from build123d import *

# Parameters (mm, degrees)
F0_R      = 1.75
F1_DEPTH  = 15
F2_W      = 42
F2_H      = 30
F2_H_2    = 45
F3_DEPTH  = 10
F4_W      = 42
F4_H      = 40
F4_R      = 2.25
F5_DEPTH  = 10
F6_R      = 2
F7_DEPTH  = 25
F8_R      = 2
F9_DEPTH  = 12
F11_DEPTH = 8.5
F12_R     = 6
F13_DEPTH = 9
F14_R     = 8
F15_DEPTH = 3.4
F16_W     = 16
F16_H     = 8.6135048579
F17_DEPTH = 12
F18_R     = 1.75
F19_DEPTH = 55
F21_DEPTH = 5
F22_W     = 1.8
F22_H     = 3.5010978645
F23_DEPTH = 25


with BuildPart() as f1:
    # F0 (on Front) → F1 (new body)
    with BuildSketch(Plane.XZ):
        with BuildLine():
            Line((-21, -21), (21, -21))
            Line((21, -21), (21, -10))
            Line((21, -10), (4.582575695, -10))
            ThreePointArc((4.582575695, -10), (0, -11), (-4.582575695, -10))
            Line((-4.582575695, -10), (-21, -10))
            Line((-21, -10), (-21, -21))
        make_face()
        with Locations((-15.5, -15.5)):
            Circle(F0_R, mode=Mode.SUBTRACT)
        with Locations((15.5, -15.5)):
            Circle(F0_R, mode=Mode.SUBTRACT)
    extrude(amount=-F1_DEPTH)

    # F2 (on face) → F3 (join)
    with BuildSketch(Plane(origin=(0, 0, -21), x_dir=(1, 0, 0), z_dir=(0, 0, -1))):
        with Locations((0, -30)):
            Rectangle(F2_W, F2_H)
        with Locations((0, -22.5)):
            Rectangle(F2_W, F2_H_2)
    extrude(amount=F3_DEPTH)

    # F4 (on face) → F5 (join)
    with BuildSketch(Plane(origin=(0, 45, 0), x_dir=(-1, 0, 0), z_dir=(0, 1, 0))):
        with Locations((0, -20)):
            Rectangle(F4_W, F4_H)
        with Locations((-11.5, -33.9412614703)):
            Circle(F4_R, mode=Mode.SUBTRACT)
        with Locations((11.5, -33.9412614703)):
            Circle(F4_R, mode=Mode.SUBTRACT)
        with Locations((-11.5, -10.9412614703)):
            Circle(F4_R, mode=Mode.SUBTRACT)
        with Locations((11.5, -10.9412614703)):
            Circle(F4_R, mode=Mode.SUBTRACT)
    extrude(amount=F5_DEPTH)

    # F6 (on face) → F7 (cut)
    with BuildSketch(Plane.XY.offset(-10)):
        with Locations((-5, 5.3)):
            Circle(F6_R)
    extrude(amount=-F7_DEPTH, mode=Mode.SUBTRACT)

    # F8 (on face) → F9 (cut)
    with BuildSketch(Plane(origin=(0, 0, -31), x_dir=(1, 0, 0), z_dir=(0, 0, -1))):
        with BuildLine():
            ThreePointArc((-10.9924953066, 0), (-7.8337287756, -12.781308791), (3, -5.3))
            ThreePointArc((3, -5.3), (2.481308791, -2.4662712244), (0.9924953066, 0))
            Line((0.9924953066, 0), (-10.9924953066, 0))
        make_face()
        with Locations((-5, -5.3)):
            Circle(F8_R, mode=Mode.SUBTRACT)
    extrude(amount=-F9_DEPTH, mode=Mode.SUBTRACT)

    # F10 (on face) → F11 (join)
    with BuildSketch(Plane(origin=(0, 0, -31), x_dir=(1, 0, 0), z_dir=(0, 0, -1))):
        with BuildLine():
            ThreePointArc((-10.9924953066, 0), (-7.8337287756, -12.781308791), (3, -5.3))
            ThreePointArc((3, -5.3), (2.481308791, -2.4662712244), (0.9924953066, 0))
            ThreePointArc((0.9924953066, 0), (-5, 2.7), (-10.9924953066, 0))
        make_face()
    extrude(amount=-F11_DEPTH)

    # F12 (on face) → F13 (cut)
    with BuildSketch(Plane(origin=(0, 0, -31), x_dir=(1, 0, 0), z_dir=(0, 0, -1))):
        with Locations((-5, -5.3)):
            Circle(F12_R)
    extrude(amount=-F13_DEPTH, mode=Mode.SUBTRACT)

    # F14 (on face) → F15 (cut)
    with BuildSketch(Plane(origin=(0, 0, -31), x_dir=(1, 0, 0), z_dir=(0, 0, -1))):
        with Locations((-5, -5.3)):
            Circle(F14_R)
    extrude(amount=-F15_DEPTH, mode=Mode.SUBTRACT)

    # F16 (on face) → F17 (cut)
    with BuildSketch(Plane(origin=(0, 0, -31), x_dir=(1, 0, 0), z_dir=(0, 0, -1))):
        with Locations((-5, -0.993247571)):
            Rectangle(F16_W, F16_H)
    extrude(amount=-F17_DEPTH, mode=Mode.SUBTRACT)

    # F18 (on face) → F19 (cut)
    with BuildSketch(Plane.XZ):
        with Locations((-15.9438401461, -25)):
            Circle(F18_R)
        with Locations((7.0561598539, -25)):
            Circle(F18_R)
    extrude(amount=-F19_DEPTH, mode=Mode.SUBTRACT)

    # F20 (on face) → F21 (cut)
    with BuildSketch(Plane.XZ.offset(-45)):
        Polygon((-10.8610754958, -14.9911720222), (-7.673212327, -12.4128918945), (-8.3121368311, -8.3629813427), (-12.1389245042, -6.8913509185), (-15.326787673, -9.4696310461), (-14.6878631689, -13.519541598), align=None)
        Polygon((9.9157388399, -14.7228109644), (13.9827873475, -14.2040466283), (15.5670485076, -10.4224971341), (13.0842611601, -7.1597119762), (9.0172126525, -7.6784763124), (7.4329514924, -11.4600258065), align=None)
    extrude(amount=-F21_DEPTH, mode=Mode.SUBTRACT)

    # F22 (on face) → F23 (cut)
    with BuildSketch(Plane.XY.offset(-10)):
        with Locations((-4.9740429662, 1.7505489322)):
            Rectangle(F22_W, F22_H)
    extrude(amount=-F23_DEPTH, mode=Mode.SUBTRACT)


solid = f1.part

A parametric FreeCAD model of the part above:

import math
import FreeCAD as App
import Part
import Sketcher
from FreeCAD import Vector
Q = App.Units.Quantity


def add_polygon(sketch, points):
    """Adds a closed chain of lines whose ends are joined by coincident constraints."""
    first, n = sketch.GeometryCount, len(points)
    for a, b in zip(points, points[1:] + points[:1]):
        sketch.addGeometry(Part.LineSegment(App.Vector(*a, 0), App.Vector(*b, 0)), False)
    for i in range(n):
        sketch.addConstraint(Sketcher.Constraint("Coincident", first + i, 2, first + (i + 1) % n, 1))

doc = App.newDocument("Part")
body = doc.addObject("PartDesign::Body", "Body")

sketch1 = body.newObject("Sketcher::SketchObject", "Sketch")
sketch1.AttachmentSupport = (doc.getObject("XZ_Plane"), [""])
sketch1.MapMode = "FlatFace"
sketch1.addGeometry(Part.LineSegment(Vector(-21, -21, 0), Vector(21, -21, 0)), False)
sketch1.addGeometry(Part.LineSegment(Vector(21, -21, 0), Vector(21, -10, 0)), False)
sketch1.addGeometry(Part.LineSegment(Vector(21, -10, 0), Vector(4.582576, -10, 0)), False)
sketch1.addGeometry(Part.ArcOfCircle(Part.Circle(Vector(0, 0, 0), Vector(0, 0, 1), 11), math.radians(-114.619977), math.radians(-65.380023)), False)
sketch1.addGeometry(Part.LineSegment(Vector(-4.582576, -10, 0), Vector(-21, -10, 0)), False)
sketch1.addGeometry(Part.LineSegment(Vector(-21, -10, 0), Vector(-21, -21, 0)), False)
sketch1.addGeometry(Part.Circle(Vector(-15.5, -15.5, 0), Vector(0, 0, 1), 1.75), False)
sketch1.addGeometry(Part.Circle(Vector(15.5, -15.5, 0), Vector(0, 0, 1), 1.75), False)
sketch1.addConstraint(Sketcher.Constraint("Coincident", 0, 2, 1, 1))
sketch1.addConstraint(Sketcher.Constraint("Coincident", 1, 2, 2, 1))
sketch1.addConstraint(Sketcher.Constraint("Coincident", 2, 2, 3, 2))
sketch1.addConstraint(Sketcher.Constraint("Coincident", 3, 1, 4, 1))
sketch1.addConstraint(Sketcher.Constraint("Coincident", 4, 2, 5, 1))
sketch1.addConstraint(Sketcher.Constraint("Coincident", 5, 2, 0, 1))
sketch1.addConstraint(Sketcher.Constraint("Horizontal", 0))
sketch1.addConstraint(Sketcher.Constraint("Vertical", 1))
sketch1.addConstraint(Sketcher.Constraint("Horizontal", 2))
sketch1.addConstraint(Sketcher.Constraint("Horizontal", 4))
sketch1.addConstraint(Sketcher.Constraint("Vertical", 5))
sketch1.addConstraint(Sketcher.Constraint("Coincident", 3, 3, -1, 1))
sketch1.addConstraint(Sketcher.Constraint("Equal", 6, 7))
sketch1.addConstraint(Sketcher.Constraint("Symmetric", 6, 3, 7, 3, -2))
sketch1.addConstraint(Sketcher.Constraint("Symmetric", 1, 2, 4, 2, -2))
sketch1.addConstraint(Sketcher.Constraint("Radius", 3, Q("11 mm")))
sketch1.addConstraint(Sketcher.Constraint("Diameter", 6, Q("3.5 mm")))
sketch1.addConstraint(Sketcher.Constraint("DistanceX", 0, 1, 0, 2, Q("42 mm")))
sketch1.addConstraint(Sketcher.Constraint("DistanceY", 1, 1, 1, 2, Q("11 mm")))
sketch1.addConstraint(Sketcher.Constraint("DistanceY", 0, 2, -1, 1, Q("21 mm")))
sketch1.addConstraint(Sketcher.Constraint("DistanceX", 6, 3, 7, 3, Q("31 mm")))
sketch1.addConstraint(Sketcher.Constraint("DistanceY", 6, 3, -1, 1, Q("15.5 mm")))
pad1 = body.newObject("PartDesign::Pad", "Pad")
pad1.Profile = sketch1
pad1.Length = 15
pad1.Reversed = True

sketch2 = body.newObject("Sketcher::SketchObject", "Sketch001")
sketch2.AttachmentSupport = (doc.getObject("XY_Plane"), [""])
sketch2.MapMode = "FlatFace"
sketch2.AttachmentOffset = App.Placement(Vector(0, 0, -21), App.Rotation())
add_polygon(sketch2, [(-21, 45), (21, 45), (21, 0), (-21, 0)])
sketch2.addConstraint(Sketcher.Constraint("Horizontal", 0))
sketch2.addConstraint(Sketcher.Constraint("Vertical", 1))
sketch2.addConstraint(Sketcher.Constraint("Horizontal", 2))
sketch2.addConstraint(Sketcher.Constraint("Vertical", 3))
sketch2.addConstraint(Sketcher.Constraint("Symmetric", 1, 2, 2, 2, -1, 1))
sketch2.addConstraint(Sketcher.Constraint("DistanceX", 0, 1, 0, 2, Q("42 mm")))
sketch2.addConstraint(Sketcher.Constraint("DistanceY", 1, 2, 1, 1, Q("45 mm")))
pad2 = body.newObject("PartDesign::Pad", "Pad001")
pad2.Profile = sketch2
pad2.Length = 10
pad2.Reversed = True

sketch3 = body.newObject("Sketcher::SketchObject", "Sketch002")
sketch3.AttachmentSupport = (doc.getObject("XZ_Plane"), [""])
sketch3.MapMode = "FlatFace"
sketch3.AttachmentOffset = App.Placement(Vector(0, 0, -45), App.Rotation())
add_polygon(sketch3, [(21, 0), (21, -40), (-21, -40), (-21, 0)])
sketch3.addGeometry(Part.Circle(Vector(11.5, -33.941261, 0), Vector(0, 0, 1), 2.25), False)
sketch3.addGeometry(Part.Circle(Vector(-11.5, -33.941261, 0), Vector(0, 0, 1), 2.25), False)
sketch3.addGeometry(Part.Circle(Vector(11.5, -10.941261, 0), Vector(0, 0, 1), 2.25), False)
sketch3.addGeometry(Part.Circle(Vector(-11.5, -10.941261, 0), Vector(0, 0, 1), 2.25), False)
sketch3.addConstraint(Sketcher.Constraint("Vertical", 0))
sketch3.addConstraint(Sketcher.Constraint("Horizontal", 1))
sketch3.addConstraint(Sketcher.Constraint("Vertical", 2))
sketch3.addConstraint(Sketcher.Constraint("Horizontal", 3))
sketch3.addConstraint(Sketcher.Constraint("Equal", 4, 5))
sketch3.addConstraint(Sketcher.Constraint("Equal", 5, 6))
sketch3.addConstraint(Sketcher.Constraint("Equal", 6, 7))
sketch3.addConstraint(Sketcher.Constraint("Symmetric", 2, 2, 3, 2, -1, 1))
sketch3.addConstraint(Sketcher.Constraint("Symmetric", 4, 3, 5, 3, -2))
sketch3.addConstraint(Sketcher.Constraint("Symmetric", 6, 3, 7, 3, -2))
sketch3.addConstraint(Sketcher.Constraint("Vertical", 4, 3, 6, 3))
sketch3.addConstraint(Sketcher.Constraint("Diameter", 4, Q("4.5 mm")))
sketch3.addConstraint(Sketcher.Constraint("DistanceX", 1, 2, 1, 1, Q("42 mm")))
sketch3.addConstraint(Sketcher.Constraint("DistanceY", 0, 2, 0, 1, Q("40 mm")))
sketch3.addConstraint(Sketcher.Constraint("DistanceX", 5, 3, 4, 3, Q("23 mm")))
sketch3.addConstraint(Sketcher.Constraint("DistanceY", 4, 3, 6, 3, Q("23 mm")))
sketch3.addConstraint(Sketcher.Constraint("DistanceY", 4, 3, -1, 1, Q("33.941261 mm")))
pad3 = body.newObject("PartDesign::Pad", "Pad002")
pad3.Profile = sketch3
pad3.Length = 10
pad3.Reversed = True

sketch4 = body.newObject("Sketcher::SketchObject", "Sketch003")
sketch4.AttachmentSupport = (doc.getObject("XY_Plane"), [""])
sketch4.MapMode = "FlatFace"
sketch4.AttachmentOffset = App.Placement(Vector(0, 0, -10), App.Rotation())
sketch4.addGeometry(Part.Circle(Vector(-5, 5.3, 0), Vector(0, 0, 1), 2), False)
sketch4.addConstraint(Sketcher.Constraint("Diameter", 0, Q("4 mm")))
sketch4.addConstraint(Sketcher.Constraint("DistanceX", 0, 3, -1, 1, Q("5 mm")))
sketch4.addConstraint(Sketcher.Constraint("DistanceY", -1, 1, 0, 3, Q("5.3 mm")))
pocket1 = body.newObject("PartDesign::Pocket", "Pocket")
pocket1.Profile = sketch4
pocket1.Length = 25

sketch5 = body.newObject("Sketcher::SketchObject", "Sketch004")
sketch5.AttachmentSupport = (doc.getObject("XY_Plane"), [""])
sketch5.MapMode = "FlatFace"
sketch5.AttachmentOffset = App.Placement(Vector(0, 0, -31), App.Rotation())
sketch5.addGeometry(Part.ArcOfCircle(Part.Circle(Vector(-5, 5.3, 0), Vector(0, 0, 1), 8), math.radians(0), math.radians(221.490817)), False)
sketch5.addGeometry(Part.ArcOfCircle(Part.Circle(Vector(-5, 5.3, 0), Vector(0, 0, 1), 8), math.radians(-41.490817), math.radians(0)), False)
sketch5.addGeometry(Part.LineSegment(Vector(0.992495, 0, 0), Vector(-10.992495, 0, 0)), False)
sketch5.addGeometry(Part.Circle(Vector(-5, 5.3, 0), Vector(0, 0, 1), 2), False)
sketch5.addConstraint(Sketcher.Constraint("Tangent", 0, 1, 1, 2))
sketch5.addConstraint(Sketcher.Constraint("Coincident", 1, 1, 2, 1))
sketch5.addConstraint(Sketcher.Constraint("Coincident", 2, 2, 0, 2))
sketch5.addConstraint(Sketcher.Constraint("Horizontal", 2))
sketch5.addConstraint(Sketcher.Constraint("Coincident", 3, 3, 0, 3))
sketch5.addConstraint(Sketcher.Constraint("Equal", 0, 1))
sketch5.addConstraint(Sketcher.Constraint("PointOnObject", 1, 1, -1))
sketch5.addConstraint(Sketcher.Constraint("Horizontal", 3, 3, 0, 1))
sketch5.addConstraint(Sketcher.Constraint("Diameter", 3, Q("4 mm")))
sketch5.addConstraint(Sketcher.Constraint("Radius", 0, Q("8 mm")))
sketch5.addConstraint(Sketcher.Constraint("DistanceX", 0, 3, -1, 1, Q("5 mm")))
sketch5.addConstraint(Sketcher.Constraint("DistanceY", -1, 1, 0, 3, Q("5.3 mm")))
pocket2 = body.newObject("PartDesign::Pocket", "Pocket001")
pocket2.Profile = sketch5
pocket2.Length = 12
pocket2.Reversed = True

sketch6 = body.newObject("Sketcher::SketchObject", "Sketch005")
sketch6.AttachmentSupport = (doc.getObject("XY_Plane"), [""])
sketch6.MapMode = "FlatFace"
sketch6.AttachmentOffset = App.Placement(Vector(0, 0, -31), App.Rotation())
sketch6.addGeometry(Part.ArcOfCircle(Part.Circle(Vector(-5, 5.3, 0), Vector(0, 0, 1), 8), math.radians(0), math.radians(221.490817)), False)
sketch6.addGeometry(Part.ArcOfCircle(Part.Circle(Vector(-5, 5.3, 0), Vector(0, 0, 1), 8), math.radians(-41.490817), math.radians(0)), False)
sketch6.addGeometry(Part.ArcOfCircle(Part.Circle(Vector(-5, 5.3, 0), Vector(0, 0, 1), 8), math.radians(-138.509183), math.radians(-41.490817)), False)
sketch6.addConstraint(Sketcher.Constraint("Tangent", 0, 1, 1, 2))
sketch6.addConstraint(Sketcher.Constraint("Tangent", 1, 1, 2, 2))
sketch6.addConstraint(Sketcher.Constraint("Tangent", 2, 1, 0, 2))
sketch6.addConstraint(Sketcher.Constraint("PointOnObject", 1, 1, -1))
sketch6.addConstraint(Sketcher.Constraint("PointOnObject", 2, 1, -1))
sketch6.addConstraint(Sketcher.Constraint("Horizontal", 2, 3, 0, 1))
sketch6.addConstraint(Sketcher.Constraint("Radius", 0, Q("8 mm")))
sketch6.addConstraint(Sketcher.Constraint("DistanceX", 0, 3, -1, 1, Q("5 mm")))
sketch6.addConstraint(Sketcher.Constraint("DistanceY", -1, 1, 0, 3, Q("5.3 mm")))
pad4 = body.newObject("PartDesign::Pad", "Pad003")
pad4.Profile = sketch6
pad4.Length = 8.5

sketch7 = body.newObject("Sketcher::SketchObject", "Sketch006")
sketch7.AttachmentSupport = (doc.getObject("XY_Plane"), [""])
sketch7.MapMode = "FlatFace"
sketch7.AttachmentOffset = App.Placement(Vector(0, 0, -31), App.Rotation())
sketch7.addGeometry(Part.Circle(Vector(-5, 5.3, 0), Vector(0, 0, 1), 6), False)
sketch7.addConstraint(Sketcher.Constraint("Diameter", 0, Q("12 mm")))
sketch7.addConstraint(Sketcher.Constraint("DistanceX", 0, 3, -1, 1, Q("5 mm")))
sketch7.addConstraint(Sketcher.Constraint("DistanceY", -1, 1, 0, 3, Q("5.3 mm")))
pocket3 = body.newObject("PartDesign::Pocket", "Pocket002")
pocket3.Profile = sketch7
pocket3.Length = 9
pocket3.Reversed = True

sketch8 = body.newObject("Sketcher::SketchObject", "Sketch007")
sketch8.AttachmentSupport = (doc.getObject("XY_Plane"), [""])
sketch8.MapMode = "FlatFace"
sketch8.AttachmentOffset = App.Placement(Vector(0, 0, -31), App.Rotation())
sketch8.addGeometry(Part.Circle(Vector(-5, 5.3, 0), Vector(0, 0, 1), 8), False)
sketch8.addConstraint(Sketcher.Constraint("Diameter", 0, Q("16 mm")))
sketch8.addConstraint(Sketcher.Constraint("DistanceX", 0, 3, -1, 1, Q("5 mm")))
sketch8.addConstraint(Sketcher.Constraint("DistanceY", -1, 1, 0, 3, Q("5.3 mm")))
pocket4 = body.newObject("PartDesign::Pocket", "Pocket003")
pocket4.Profile = sketch8
pocket4.Length = 3.4
pocket4.Reversed = True

sketch9 = body.newObject("Sketcher::SketchObject", "Sketch008")
sketch9.AttachmentSupport = (doc.getObject("XY_Plane"), [""])
sketch9.MapMode = "FlatFace"
sketch9.AttachmentOffset = App.Placement(Vector(0, 0, -31), App.Rotation())
add_polygon(sketch9, [(-13, -3.313505), (-13, 5.3), (3, 5.3), (3, -3.313505)])
sketch9.addConstraint(Sketcher.Constraint("Vertical", 0))
sketch9.addConstraint(Sketcher.Constraint("Horizontal", 1))
sketch9.addConstraint(Sketcher.Constraint("Vertical", 2))
sketch9.addConstraint(Sketcher.Constraint("Horizontal", 3))
sketch9.addConstraint(Sketcher.Constraint("DistanceX", 1, 1, 1, 2, Q("16 mm")))
sketch9.addConstraint(Sketcher.Constraint("DistanceX", 0, 2, -1, 1, Q("13 mm")))
sketch9.addConstraint(Sketcher.Constraint("DistanceY", -1, 1, 0, 2, Q("5.3 mm")))
sketch9.addConstraint(Sketcher.Constraint("DistanceY", 0, 1, 0, 2, Q("8.613505 mm")))
pocket5 = body.newObject("PartDesign::Pocket", "Pocket004")
pocket5.Profile = sketch9
pocket5.Length = 12
pocket5.Reversed = True

sketch10 = body.newObject("Sketcher::SketchObject", "Sketch009")
sketch10.AttachmentSupport = (doc.getObject("XZ_Plane"), [""])
sketch10.MapMode = "FlatFace"
sketch10.addGeometry(Part.Circle(Vector(-15.94384, -25, 0), Vector(0, 0, 1), 1.75), False)
sketch10.addGeometry(Part.Circle(Vector(7.05616, -25, 0), Vector(0, 0, 1), 1.75), False)
sketch10.addConstraint(Sketcher.Constraint("Equal", 0, 1))
sketch10.addConstraint(Sketcher.Constraint("Horizontal", 0, 3, 1, 3))
sketch10.addConstraint(Sketcher.Constraint("Diameter", 0, Q("3.5 mm")))
sketch10.addConstraint(Sketcher.Constraint("DistanceY", 0, 3, -1, 1, Q("25 mm")))
sketch10.addConstraint(Sketcher.Constraint("DistanceX", 0, 3, 1, 3, Q("23 mm")))
sketch10.addConstraint(Sketcher.Constraint("DistanceX", 0, 3, -1, 1, Q("15.94384 mm")))
pocket6 = body.newObject("PartDesign::Pocket", "Pocket005")
pocket6.Profile = sketch10
pocket6.Length = 55

sketch11 = body.newObject("Sketcher::SketchObject", "Sketch010")
sketch11.AttachmentSupport = (doc.getObject("XZ_Plane"), [""])
sketch11.MapMode = "FlatFace"
sketch11.AttachmentOffset = App.Placement(Vector(0, 0, -45), App.Rotation())
add_polygon(sketch11, [(-10.861075, -14.991172), (-7.673212, -12.412892), (-8.312137, -8.362981), (-12.138925, -6.891351), (-15.326788, -9.469631), (-14.687863, -13.519542)])
add_polygon(sketch11, [(9.915739, -14.722811), (13.982787, -14.204047), (15.567049, -10.422497), (13.084261, -7.159712), (9.017213, -7.678476), (7.432951, -11.460026)])
sketch11.addConstraint(Sketcher.Constraint("Parallel", 0, 3))
sketch11.addConstraint(Sketcher.Constraint("Parallel", 1, 4))
sketch11.addConstraint(Sketcher.Constraint("Parallel", 2, 5))
sketch11.addConstraint(Sketcher.Constraint("Parallel", 6, 9))
sketch11.addConstraint(Sketcher.Constraint("Parallel", 7, 10))
sketch11.addConstraint(Sketcher.Constraint("Parallel", 8, 11))
sketch11.addConstraint(Sketcher.Constraint("Equal", 0, 1))
sketch11.addConstraint(Sketcher.Constraint("Equal", 1, 2))
sketch11.addConstraint(Sketcher.Constraint("Equal", 2, 3))
sketch11.addConstraint(Sketcher.Constraint("Equal", 5, 6))
sketch11.addConstraint(Sketcher.Constraint("Equal", 6, 7))
sketch11.addConstraint(Sketcher.Constraint("Equal", 7, 8))
sketch11.addConstraint(Sketcher.Constraint("Equal", 8, 9))
sketch11.addConstraint(Sketcher.Constraint("Distance", 0, Q("4.1 mm")))
sketch11.addConstraint(Sketcher.Constraint("DistanceX", 0, 2, 6, 2, Q("21.656 mm")))
sketch11.addConstraint(Sketcher.Constraint("DistanceY", 11, 2, 8, 2, Q("7.563099 mm")))
sketch11.addConstraint(Sketcher.Constraint("DistanceY", 0, 2, -1, 1, Q("12.412892 mm")))
sketch11.addConstraint(Sketcher.Constraint("DistanceY", 1, 2, -1, 1, Q("8.362981 mm")))
sketch11.addConstraint(Sketcher.Constraint("DistanceY", 2, 2, -1, 1, Q("6.891351 mm")))
sketch11.addConstraint(Sketcher.Constraint("DistanceY", 3, 2, -1, 1, Q("9.469631 mm")))
sketch11.addConstraint(Sketcher.Constraint("DistanceX", -1, 1, 7, 2, Q("15.567049 mm")))
sketch11.addConstraint(Sketcher.Constraint("DistanceX", -1, 1, 8, 2, Q("13.084261 mm")))
sketch11.addConstraint(Sketcher.Constraint("DistanceY", 8, 2, -1, 1, Q("7.159712 mm")))
sketch11.addConstraint(Sketcher.Constraint("DistanceX", -1, 1, 10, 2, Q("7.432951 mm")))
pocket7 = body.newObject("PartDesign::Pocket", "Pocket006")
pocket7.Profile = sketch11
pocket7.Length = 5

sketch12 = body.newObject("Sketcher::SketchObject", "Sketch011")
sketch12.AttachmentSupport = (doc.getObject("XY_Plane"), [""])
sketch12.MapMode = "FlatFace"
sketch12.AttachmentOffset = App.Placement(Vector(0, 0, -10), App.Rotation())
add_polygon(sketch12, [(-5.874043, 3.501098), (-5.874043, 0), (-4.074043, 0), (-4.074043, 3.501098)])
sketch12.addConstraint(Sketcher.Constraint("Vertical", 0))
sketch12.addConstraint(Sketcher.Constraint("Horizontal", 1))
sketch12.addConstraint(Sketcher.Constraint("Vertical", 2))
sketch12.addConstraint(Sketcher.Constraint("Horizontal", 3))
sketch12.addConstraint(Sketcher.Constraint("PointOnObject", 0, 2, -1))
sketch12.addConstraint(Sketcher.Constraint("DistanceX", 1, 1, 1, 2, Q("1.8 mm")))
sketch12.addConstraint(Sketcher.Constraint("DistanceY", 0, 2, 0, 1, Q("3.501098 mm")))
sketch12.addConstraint(Sketcher.Constraint("DistanceX", 0, 2, -1, 1, Q("5.874043 mm")))
pocket8 = body.newObject("PartDesign::Pocket", "Pocket007")
pocket8.Profile = sketch12
pocket8.Length = 25

doc.recompute()
